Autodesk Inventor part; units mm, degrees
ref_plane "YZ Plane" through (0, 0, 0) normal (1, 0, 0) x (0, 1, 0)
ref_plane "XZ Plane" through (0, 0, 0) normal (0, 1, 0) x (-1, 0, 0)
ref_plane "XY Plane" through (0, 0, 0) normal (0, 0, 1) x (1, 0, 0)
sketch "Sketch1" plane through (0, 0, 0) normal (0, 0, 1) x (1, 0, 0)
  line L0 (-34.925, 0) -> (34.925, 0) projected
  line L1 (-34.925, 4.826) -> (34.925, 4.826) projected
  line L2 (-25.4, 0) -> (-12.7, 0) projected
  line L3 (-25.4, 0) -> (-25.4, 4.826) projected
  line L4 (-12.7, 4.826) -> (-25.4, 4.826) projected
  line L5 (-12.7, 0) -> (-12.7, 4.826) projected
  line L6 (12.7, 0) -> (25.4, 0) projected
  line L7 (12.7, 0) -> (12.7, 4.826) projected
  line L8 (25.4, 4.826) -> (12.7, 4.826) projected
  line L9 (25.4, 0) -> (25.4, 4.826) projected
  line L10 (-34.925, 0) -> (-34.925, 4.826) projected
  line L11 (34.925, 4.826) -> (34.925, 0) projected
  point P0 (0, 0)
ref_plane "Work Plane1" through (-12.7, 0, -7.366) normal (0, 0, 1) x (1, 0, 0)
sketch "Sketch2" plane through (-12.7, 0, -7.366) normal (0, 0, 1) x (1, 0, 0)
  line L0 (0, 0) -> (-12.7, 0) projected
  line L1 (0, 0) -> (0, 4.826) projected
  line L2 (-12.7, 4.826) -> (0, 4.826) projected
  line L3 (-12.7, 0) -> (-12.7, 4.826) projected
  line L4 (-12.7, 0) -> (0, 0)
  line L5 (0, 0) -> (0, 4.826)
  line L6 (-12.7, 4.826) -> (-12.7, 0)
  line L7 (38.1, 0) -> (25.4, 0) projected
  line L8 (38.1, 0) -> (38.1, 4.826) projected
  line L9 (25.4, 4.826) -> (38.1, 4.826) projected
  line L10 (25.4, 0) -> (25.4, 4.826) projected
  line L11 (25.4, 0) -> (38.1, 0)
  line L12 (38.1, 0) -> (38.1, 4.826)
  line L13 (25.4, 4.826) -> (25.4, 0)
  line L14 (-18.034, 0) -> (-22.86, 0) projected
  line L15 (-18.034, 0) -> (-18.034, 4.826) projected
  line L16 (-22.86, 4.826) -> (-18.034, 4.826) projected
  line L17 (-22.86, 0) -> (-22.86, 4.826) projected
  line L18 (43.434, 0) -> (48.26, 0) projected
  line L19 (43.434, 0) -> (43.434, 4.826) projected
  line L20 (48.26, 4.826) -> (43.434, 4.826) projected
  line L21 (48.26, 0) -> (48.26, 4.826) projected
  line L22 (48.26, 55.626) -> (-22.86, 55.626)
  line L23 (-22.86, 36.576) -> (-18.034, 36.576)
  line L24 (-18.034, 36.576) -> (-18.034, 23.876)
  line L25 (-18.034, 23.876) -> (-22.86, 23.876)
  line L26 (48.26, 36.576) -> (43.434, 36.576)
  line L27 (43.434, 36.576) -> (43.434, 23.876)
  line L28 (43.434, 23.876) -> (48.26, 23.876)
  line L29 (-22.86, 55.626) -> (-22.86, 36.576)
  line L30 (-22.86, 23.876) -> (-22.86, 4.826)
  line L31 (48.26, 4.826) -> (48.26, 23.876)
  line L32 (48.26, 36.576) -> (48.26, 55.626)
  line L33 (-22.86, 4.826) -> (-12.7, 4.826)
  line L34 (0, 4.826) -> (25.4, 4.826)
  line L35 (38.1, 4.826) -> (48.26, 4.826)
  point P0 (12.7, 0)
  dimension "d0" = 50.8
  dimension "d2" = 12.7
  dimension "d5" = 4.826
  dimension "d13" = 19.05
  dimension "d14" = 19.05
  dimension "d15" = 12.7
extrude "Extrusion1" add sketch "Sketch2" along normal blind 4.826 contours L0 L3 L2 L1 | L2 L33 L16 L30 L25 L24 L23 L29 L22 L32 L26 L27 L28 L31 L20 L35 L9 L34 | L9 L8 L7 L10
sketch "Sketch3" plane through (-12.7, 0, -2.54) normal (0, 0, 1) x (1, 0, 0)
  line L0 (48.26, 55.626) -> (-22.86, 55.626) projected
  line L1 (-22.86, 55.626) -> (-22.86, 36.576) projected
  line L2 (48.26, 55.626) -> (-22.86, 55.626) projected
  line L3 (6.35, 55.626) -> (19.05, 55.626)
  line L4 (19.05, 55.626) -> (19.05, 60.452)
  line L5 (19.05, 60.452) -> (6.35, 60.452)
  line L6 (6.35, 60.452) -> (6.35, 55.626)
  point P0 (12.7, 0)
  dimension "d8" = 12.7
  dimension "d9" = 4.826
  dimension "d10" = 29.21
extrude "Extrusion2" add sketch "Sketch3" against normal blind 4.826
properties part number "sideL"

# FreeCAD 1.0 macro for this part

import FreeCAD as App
import Part
import Sketcher

V = App.Vector
Q = App.Units.Quantity

doc = App.newDocument("Part")
params = doc.addObject("Spreadsheet::Sheet", "Params")
for row, (alias, value) in enumerate([
    ("sketch1_width", "0.5 in"),
    ("sketch1_width2", "0.19 in"),
    ("sketch1_width3", "0.4 in"),
    ("pad1_length", "0.19 in"),
    ("sketch2_width", "0.5 in"),
    ("sketch2_height", "0.19 in"),
    ("pad2_length", "0.19 in"),
], start=1):
    params.set(f"A{row}", alias)
    params.set(f"B{row}", "=" + value)
    params.setAlias(f"B{row}", alias)

body = doc.addObject("PartDesign::Body", "Body")

# Sketch on XY plane
sketch1 = body.newObject("Sketcher::SketchObject", "Sketch")
sketch1.AttachmentSupport = (doc.getObject("XY_Plane"), [""])
sketch1.MapMode = "FlatFace"
sketch1.AttachmentOffset = App.Placement(V(0, 0, -0.29 * 25.4), App.Rotation())
sketch1.addGeometry([
    Part.LineSegment(V(-25.4, 0, 0), V(-12.7, 0, 0)),  # 0
    Part.LineSegment(V(-12.7, 0, 0), V(-12.7, 4.8, 0)),  # 1
    Part.LineSegment(V(-12.7, 4.8, 0), V(12.7, 4.8, 0)),  # 2
    Part.LineSegment(V(12.7, 4.8, 0), V(12.7, 0, 0)),  # 3
    Part.LineSegment(V(12.7, 0, 0), V(25.4, 0, 0)),  # 4
    Part.LineSegment(V(25.4, 0, 0), V(25.4, 4.8, 0)),  # 5
    Part.LineSegment(V(25.4, 4.8, 0), V(35.6, 4.8, 0)),  # 6
    Part.LineSegment(V(35.6, 4.8, 0), V(35.6, 23.9, 0)),  # 7
    Part.LineSegment(V(35.6, 23.9, 0), V(30.7, 23.9, 0)),  # 8
    Part.LineSegment(V(30.7, 23.9, 0), V(30.7, 36.6, 0)),  # 9
    Part.LineSegment(V(30.7, 36.6, 0), V(35.6, 36.6, 0)),  # 10
    Part.LineSegment(V(35.6, 36.6, 0), V(35.6, 55.6, 0)),  # 11
    Part.LineSegment(V(35.6, 55.6, 0), V(-35.6, 55.6, 0)),  # 12
    Part.LineSegment(V(-35.6, 55.6, 0), V(-35.6, 36.6, 0)),  # 13
    Part.LineSegment(V(-35.6, 36.6, 0), V(-30.7, 36.6, 0)),  # 14
    Part.LineSegment(V(-30.7, 36.6, 0), V(-30.7, 23.9, 0)),  # 15
    Part.LineSegment(V(-30.7, 23.9, 0), V(-35.6, 23.9, 0)),  # 16
    Part.LineSegment(V(-35.6, 23.9, 0), V(-35.6, 4.8, 0)),  # 17
    Part.LineSegment(V(-35.6, 4.8, 0), V(-25.4, 4.8, 0)),  # 18
    Part.LineSegment(V(-25.4, 4.8, 0), V(-25.4, 0, 0)),  # 19
], False)
sketch1.addConstraint([
    Sketcher.Constraint("Coincident", 0, 2, 1, 1),
    Sketcher.Constraint("Coincident", 1, 2, 2, 1),
    Sketcher.Constraint("Coincident", 2, 2, 3, 1),
    Sketcher.Constraint("Coincident", 3, 2, 4, 1),
    Sketcher.Constraint("Coincident", 4, 2, 5, 1),
    Sketcher.Constraint("Coincident", 5, 2, 6, 1),
    Sketcher.Constraint("Coincident", 6, 2, 7, 1),
    Sketcher.Constraint("Coincident", 7, 2, 8, 1),
    Sketcher.Constraint("Coincident", 8, 2, 9, 1),
    Sketcher.Constraint("Coincident", 9, 2, 10, 1),
    Sketcher.Constraint("Coincident", 10, 2, 11, 1),
    Sketcher.Constraint("Coincident", 11, 2, 12, 1),
    Sketcher.Constraint("Coincident", 12, 2, 13, 1),
    Sketcher.Constraint("Coincident", 13, 2, 14, 1),
    Sketcher.Constraint("Coincident", 14, 2, 15, 1),
    Sketcher.Constraint("Coincident", 15, 2, 16, 1),
    Sketcher.Constraint("Coincident", 16, 2, 17, 1),
    Sketcher.Constraint("Coincident", 17, 2, 18, 1),
    Sketcher.Constraint("Coincident", 18, 2, 19, 1),
    Sketcher.Constraint("Coincident", 19, 2, 0, 1),
    Sketcher.Constraint("Horizontal", 0),
    Sketcher.Constraint("Vertical", 1),
    Sketcher.Constraint("Horizontal", 2),
    Sketcher.Constraint("Vertical", 3),
    Sketcher.Constraint("Horizontal", 4),
    Sketcher.Constraint("Vertical", 5),
    Sketcher.Constraint("Horizontal", 6),
    Sketcher.Constraint("Vertical", 7),
    Sketcher.Constraint("Horizontal", 8),
    Sketcher.Constraint("Vertical", 9),
    Sketcher.Constraint("Horizontal", 10),
    Sketcher.Constraint("Vertical", 11),
    Sketcher.Constraint("Horizontal", 12),
    Sketcher.Constraint("Vertical", 13),
    Sketcher.Constraint("Horizontal", 14),
    Sketcher.Constraint("Vertical", 15),
    Sketcher.Constraint("Horizontal", 16),
    Sketcher.Constraint("Vertical", 17),
    Sketcher.Constraint("Horizontal", 18),
    Sketcher.Constraint("Vertical", 19),
    Sketcher.Constraint("Symmetric", 0, 2, 3, 2, -1, 1),
    Sketcher.Constraint("Symmetric", 10, 2, 13, 2, -2),
    Sketcher.Constraint("Symmetric", 8, 2, 15, 2, -2),
    Sketcher.Constraint("Symmetric", 6, 2, 17, 2, -2),
    Sketcher.Constraint("Symmetric", 4, 2, 19, 2, -2),
    Sketcher.Constraint("Horizontal", 2, 2, 5, 2),
    Sketcher.Constraint("Vertical", 7, 2, 10, 2),
    Sketcher.Constraint("Equal", 16, 1),
    Sketcher.Constraint("Equal", 4, 9),
    Sketcher.Constraint("Equal", 7, 11),
    Sketcher.Constraint("DistanceX", 0, 1, 0, 2, Q("0.5 in")),
    Sketcher.Constraint("DistanceY", 6, 2, 11, 2, Q("2 in")),
    Sketcher.Constraint("DistanceX", 8, 2, 8, 1, Q("0.19 in")),
    Sketcher.Constraint("DistanceX", 0, 2, -1, 1, Q("0.5 in")),
    Sketcher.Constraint("DistanceX", 6, 1, 6, 2, Q("0.4 in")),
])
sketch1.setExpression("Constraints[50]", "Params.sketch1_width")
sketch1.setExpression("Constraints[52]", "Params.sketch1_width2")
sketch1.setExpression("Constraints[54]", "Params.sketch1_width3")
pad1 = body.newObject("PartDesign::Pad", "Pad")
pad1.Profile = sketch1
pad1.setExpression("Length", "Params.pad1_length")

# Sketch on XY plane
sketch2 = body.newObject("Sketcher::SketchObject", "Sketch001")
sketch2.AttachmentSupport = (doc.getObject("XY_Plane"), [""])
sketch2.MapMode = "FlatFace"
sketch2.AttachmentOffset = App.Placement(V(0, 0, -0.1 * 25.4), App.Rotation())
sketch2.addGeometry([
    Part.LineSegment(V(-6.3, 55.6, 0), V(6.3, 55.6, 0)),
    Part.LineSegment(V(6.3, 55.6, 0), V(6.3, 60.5, 0)),
    Part.LineSegment(V(6.3, 60.5, 0), V(-6.3, 60.5, 0)),
    Part.LineSegment(V(-6.3, 60.5, 0), V(-6.3, 55.6, 0)),
], False)
sketch2.addConstraint([
    Sketcher.Constraint("Coincident", 0, 2, 1, 1),
    Sketcher.Constraint("Coincident", 1, 2, 2, 1),
    Sketcher.Constraint("Coincident", 2, 2, 3, 1),
    Sketcher.Constraint("Coincident", 3, 2, 0, 1),
    Sketcher.Constraint("Horizontal", 0),
    Sketcher.Constraint("Vertical", 1),
    Sketcher.Constraint("Horizontal", 2),
    Sketcher.Constraint("Vertical", 3),
    Sketcher.Constraint("DistanceX", 0, 1, 0, 2, Q("0.5 in")),
    Sketcher.Constraint("DistanceY", 1, 1, 1, 2, Q("0.19 in")),
    Sketcher.Constraint("DistanceX", -1, 1, 0, 2, Q("0.25 in")),
    Sketcher.Constraint("DistanceY", -1, 1, 0, 2, Q("2.19 in")),
])
sketch2.setExpression("Constraints[8]", "Params.sketch2_width")
sketch2.setExpression("Constraints[9]", "Params.sketch2_height")
pad2 = body.newObject("PartDesign::Pad", "Pad001")
pad2.Profile = sketch2
pad2.setExpression("Length", "Params.pad2_length")
pad2.Reversed = True

doc.recompute()
